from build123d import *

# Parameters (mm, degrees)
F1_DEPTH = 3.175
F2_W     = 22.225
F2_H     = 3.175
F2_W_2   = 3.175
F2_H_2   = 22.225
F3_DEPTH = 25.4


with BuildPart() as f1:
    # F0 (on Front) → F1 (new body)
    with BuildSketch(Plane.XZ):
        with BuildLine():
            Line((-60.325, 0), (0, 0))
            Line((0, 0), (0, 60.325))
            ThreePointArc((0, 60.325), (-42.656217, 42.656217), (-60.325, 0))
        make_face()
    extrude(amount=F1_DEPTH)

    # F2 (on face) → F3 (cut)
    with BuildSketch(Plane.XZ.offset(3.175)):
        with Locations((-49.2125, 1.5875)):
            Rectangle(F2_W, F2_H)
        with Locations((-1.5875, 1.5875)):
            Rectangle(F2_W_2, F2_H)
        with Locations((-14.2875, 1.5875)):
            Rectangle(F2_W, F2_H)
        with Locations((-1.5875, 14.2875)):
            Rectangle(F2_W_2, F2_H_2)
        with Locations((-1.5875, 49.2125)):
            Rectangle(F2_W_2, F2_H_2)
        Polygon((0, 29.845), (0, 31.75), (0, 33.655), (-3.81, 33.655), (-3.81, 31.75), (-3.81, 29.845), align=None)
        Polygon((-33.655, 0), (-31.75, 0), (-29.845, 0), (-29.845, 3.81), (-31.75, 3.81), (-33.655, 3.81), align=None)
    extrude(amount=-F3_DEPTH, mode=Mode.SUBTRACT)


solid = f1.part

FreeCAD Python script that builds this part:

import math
import FreeCAD as App
import Part
import Sketcher
Q = App.Units.Quantity

doc = App.newDocument("Part")
params = doc.addObject("Spreadsheet::Sheet", "Params")
for row, (alias, value) in enumerate([
    ("sketch1_radius", "2.3749999 in"),
    ("pad1_length", "0.125 in"),
    ("sketch2_width", "1 in"),
    ("sketch2_width2", "0.15 in"),
    ("sketch2_width3", "0.875 in"),
    ("pocket1_length", "1 in"),
], start=1):
    params.set(f"A{row}", alias)
    params.set(f"B{row}", "=" + value)
    params.setAlias(f"B{row}", alias)

body = doc.addObject("PartDesign::Body", "Body")

# Sketch on XZ plane
sketch1 = doc.addObject("Sketcher::SketchObject", "Sketch")
body.addObject(sketch1)
sketch1.AttachmentSupport = (doc.XZ_Plane, [""])
sketch1.MapMode = "FlatFace"
sketch1.addGeometry([
    Part.LineSegment(App.Vector(-60, 0, 0), App.Vector(0, 0, 0)),
    Part.LineSegment(App.Vector(0, 0, 0), App.Vector(0, 60, 0)),
    Part.ArcOfCircle(Part.Circle(App.Vector(0, 0, 0), App.Vector(0, 0, 1), 60), math.radians(90), math.radians(180)),
], False)
sketch1.addConstraint([
    Sketcher.Constraint("Coincident", 0, 2, 1, 1),
    Sketcher.Constraint("Coincident", 1, 2, 2, 1),
    Sketcher.Constraint("Coincident", 2, 2, 0, 1),
    Sketcher.Constraint("Horizontal", 0),
    Sketcher.Constraint("Vertical", 1),
    Sketcher.Constraint("Coincident", 2, 3, -1, 1),
    Sketcher.Constraint("Coincident", 0, 2, -1, 1),
    Sketcher.Constraint("Radius", 2, Q("2.3749999 in")),
])
sketch1.setExpression("Constraints[7]", "Params.sketch1_radius")
pad1 = doc.addObject("PartDesign::Pad", "Pad")
body.addObject(pad1)
pad1.Profile = sketch1
pad1.setExpression("Length", "Params.pad1_length")

# Sketch on XZ plane
sketch2 = doc.addObject("Sketcher::SketchObject", "Sketch001")
body.addObject(sketch2)
sketch2.AttachmentSupport = (doc.XZ_Plane, [""])
sketch2.MapMode = "FlatFace"
sketch2.AttachmentOffset = App.Placement(App.Vector(0, 0, 0.125 * 25.4), App.Rotation())
sketch2.addGeometry([
    Part.LineSegment(App.Vector(-60.3, 3.2, 0), App.Vector(-60.3, 0, 0)),  # 0
    Part.LineSegment(App.Vector(-60.3, 0, 0), App.Vector(-38.1, 0, 0)),  # 1
    Part.LineSegment(App.Vector(-38.1, 0, 0), App.Vector(-38.1, 3.2, 0)),  # 2
    Part.LineSegment(App.Vector(-38.1, 3.2, 0), App.Vector(-60.3, 3.2, 0)),  # 3
    Part.LineSegment(App.Vector(0, 0, 0), App.Vector(0, 25.4, 0)),  # 4
    Part.LineSegment(App.Vector(0, 25.4, 0), App.Vector(-3.2, 25.4, 0)),  # 5
    Part.LineSegment(App.Vector(-3.2, 25.4, 0), App.Vector(-3.2, 3.2, 0)),  # 6
    Part.LineSegment(App.Vector(-3.2, 3.2, 0), App.Vector(-25.4, 3.2, 0)),  # 7
    Part.LineSegment(App.Vector(-25.4, 3.2, 0), App.Vector(-25.4, 0, 0)),  # 8
    Part.LineSegment(App.Vector(-25.4, 0, 0), App.Vector(0, 0, 0)),  # 9
    Part.LineSegment(App.Vector(-3.2, 60.3, 0), App.Vector(-3.2, 38.1, 0)),  # 10
    Part.LineSegment(App.Vector(-3.2, 38.1, 0), App.Vector(0, 38.1, 0)),  # 11
    Part.LineSegment(App.Vector(0, 38.1, 0), App.Vector(0, 60.3, 0)),  # 12
    Part.LineSegment(App.Vector(0, 60.3, 0), App.Vector(-3.2, 60.3, 0)),  # 13
    Part.LineSegment(App.Vector(0, 29.8, 0), App.Vector(0, 33.7, 0)),  # 14
    Part.LineSegment(App.Vector(0, 33.7, 0), App.Vector(-3.8, 33.7, 0)),  # 15
    Part.LineSegment(App.Vector(-3.8, 33.7, 0), App.Vector(-3.8, 29.8, 0)),  # 16
    Part.LineSegment(App.Vector(-3.8, 29.8, 0), App.Vector(0, 29.8, 0)),  # 17
    Part.LineSegment(App.Vector(-33.7, 0, 0), App.Vector(-29.8, 0, 0)),  # 18
    Part.LineSegment(App.Vector(-29.8, 0, 0), App.Vector(-29.8, 3.8, 0)),  # 19
    Part.LineSegment(App.Vector(-29.8, 3.8, 0), App.Vector(-33.7, 3.8, 0)),  # 20
    Part.LineSegment(App.Vector(-33.7, 3.8, 0), App.Vector(-33.7, 0, 0)),  # 21
], False)
sketch2.addConstraint([
    Sketcher.Constraint("Coincident", 0, 2, 1, 1),
    Sketcher.Constraint("Coincident", 1, 2, 2, 1),
    Sketcher.Constraint("Coincident", 2, 2, 3, 1),
    Sketcher.Constraint("Coincident", 3, 2, 0, 1),
    Sketcher.Constraint("Coincident", 4, 2, 5, 1),
    Sketcher.Constraint("Coincident", 5, 2, 6, 1),
    Sketcher.Constraint("Coincident", 6, 2, 7, 1),
    Sketcher.Constraint("Coincident", 7, 2, 8, 1),
    Sketcher.Constraint("Coincident", 8, 2, 9, 1),
    Sketcher.Constraint("Coincident", 9, 2, 4, 1),
    Sketcher.Constraint("Coincident", 10, 2, 11, 1),
    Sketcher.Constraint("Coincident", 11, 2, 12, 1),
    Sketcher.Constraint("Coincident", 12, 2, 13, 1),
    Sketcher.Constraint("Coincident", 13, 2, 10, 1),
    Sketcher.Constraint("Coincident", 14, 2, 15, 1),
    Sketcher.Constraint("Coincident", 15, 2, 16, 1),
    Sketcher.Constraint("Coincident", 16, 2, 17, 1),
    Sketcher.Constraint("Coincident", 17, 2, 14, 1),
    Sketcher.Constraint("Coincident", 18, 2, 19, 1),
    Sketcher.Constraint("Coincident", 19, 2, 20, 1),
    Sketcher.Constraint("Coincident", 20, 2, 21, 1),
    Sketcher.Constraint("Coincident", 21, 2, 18, 1),
    Sketcher.Constraint("Vertical", 0),
    Sketcher.Constraint("Horizontal", 1),
    Sketcher.Constraint("Vertical", 2),
    Sketcher.Constraint("Horizontal", 3),
    Sketcher.Constraint("Vertical", 4),
    Sketcher.Constraint("Horizontal", 5),
    Sketcher.Constraint("Vertical", 6),
    Sketcher.Constraint("Horizontal", 7),
    Sketcher.Constraint("Vertical", 8),
    Sketcher.Constraint("Horizontal", 9),
    Sketcher.Constraint("Vertical", 10),
    Sketcher.Constraint("Horizontal", 11),
    Sketcher.Constraint("Vertical", 12),
    Sketcher.Constraint("Horizontal", 13),
    Sketcher.Constraint("Vertical", 14),
    Sketcher.Constraint("Horizontal", 15),
    Sketcher.Constraint("Vertical", 16),
    Sketcher.Constraint("Horizontal", 17),
    Sketcher.Constraint("Horizontal", 18),
    Sketcher.Constraint("Vertical", 19),
    Sketcher.Constraint("Horizontal", 20),
    Sketcher.Constraint("Vertical", 21),
    Sketcher.Constraint("Coincident", 9, 2, -1, 1),
    Sketcher.Constraint("PointOnObject", 0, 2, -1),
    Sketcher.Constraint("PointOnObject", 11, 2, -2),
    Sketcher.Constraint("PointOnObject", 14, 2, -2),
    Sketcher.Constraint("PointOnObject", 18, 2, -1),
    Sketcher.Constraint("Horizontal", 3, 2, 6, 2),
    Sketcher.Constraint("Vertical", 6, 2, 10, 2),
    Sketcher.Constraint("Equal", 3, 7),
    Sketcher.Constraint("Equal", 17, 18),
    Sketcher.Constraint("Equal", 13, 0),
    Sketcher.Constraint("Equal", 9, 4),
    Sketcher.Constraint("Equal", 6, 10),
    Sketcher.Constraint("Equal", 20, 14),
    Sketcher.Constraint("Equal", 16, 19),
    Sketcher.Constraint("DistanceX", 9, 1, 9, 2, Q("1 in")),
    Sketcher.Constraint("DistanceX", 15, 2, 15, 1, Q("0.15 in")),
    Sketcher.Constraint("DistanceX", 1, 2, -1, 1, Q("1.5 in")),
    Sketcher.Constraint("DistanceY", -1, 1, 10, 2, Q("1.5 in")),
    Sketcher.Constraint("DistanceX", 1, 1, 1, 2, Q("0.875 in")),
    Sketcher.Constraint("DistanceY", 14, 2, 12, 2, Q("1.05 in")),
    Sketcher.Constraint("DistanceX", 18, 2, 6, 2, Q("1.05 in")),
])
sketch2.setExpression("Constraints[58]", "Params.sketch2_width")
sketch2.setExpression("Constraints[59]", "Params.sketch2_width2")
sketch2.setExpression("Constraints[62]", "Params.sketch2_width3")
pocket1 = doc.addObject("PartDesign::Pocket", "Pocket")
body.addObject(pocket1)
pocket1.Profile = sketch2
pocket1.setExpression("Length", "Params.pocket1_length")

doc.recompute()
